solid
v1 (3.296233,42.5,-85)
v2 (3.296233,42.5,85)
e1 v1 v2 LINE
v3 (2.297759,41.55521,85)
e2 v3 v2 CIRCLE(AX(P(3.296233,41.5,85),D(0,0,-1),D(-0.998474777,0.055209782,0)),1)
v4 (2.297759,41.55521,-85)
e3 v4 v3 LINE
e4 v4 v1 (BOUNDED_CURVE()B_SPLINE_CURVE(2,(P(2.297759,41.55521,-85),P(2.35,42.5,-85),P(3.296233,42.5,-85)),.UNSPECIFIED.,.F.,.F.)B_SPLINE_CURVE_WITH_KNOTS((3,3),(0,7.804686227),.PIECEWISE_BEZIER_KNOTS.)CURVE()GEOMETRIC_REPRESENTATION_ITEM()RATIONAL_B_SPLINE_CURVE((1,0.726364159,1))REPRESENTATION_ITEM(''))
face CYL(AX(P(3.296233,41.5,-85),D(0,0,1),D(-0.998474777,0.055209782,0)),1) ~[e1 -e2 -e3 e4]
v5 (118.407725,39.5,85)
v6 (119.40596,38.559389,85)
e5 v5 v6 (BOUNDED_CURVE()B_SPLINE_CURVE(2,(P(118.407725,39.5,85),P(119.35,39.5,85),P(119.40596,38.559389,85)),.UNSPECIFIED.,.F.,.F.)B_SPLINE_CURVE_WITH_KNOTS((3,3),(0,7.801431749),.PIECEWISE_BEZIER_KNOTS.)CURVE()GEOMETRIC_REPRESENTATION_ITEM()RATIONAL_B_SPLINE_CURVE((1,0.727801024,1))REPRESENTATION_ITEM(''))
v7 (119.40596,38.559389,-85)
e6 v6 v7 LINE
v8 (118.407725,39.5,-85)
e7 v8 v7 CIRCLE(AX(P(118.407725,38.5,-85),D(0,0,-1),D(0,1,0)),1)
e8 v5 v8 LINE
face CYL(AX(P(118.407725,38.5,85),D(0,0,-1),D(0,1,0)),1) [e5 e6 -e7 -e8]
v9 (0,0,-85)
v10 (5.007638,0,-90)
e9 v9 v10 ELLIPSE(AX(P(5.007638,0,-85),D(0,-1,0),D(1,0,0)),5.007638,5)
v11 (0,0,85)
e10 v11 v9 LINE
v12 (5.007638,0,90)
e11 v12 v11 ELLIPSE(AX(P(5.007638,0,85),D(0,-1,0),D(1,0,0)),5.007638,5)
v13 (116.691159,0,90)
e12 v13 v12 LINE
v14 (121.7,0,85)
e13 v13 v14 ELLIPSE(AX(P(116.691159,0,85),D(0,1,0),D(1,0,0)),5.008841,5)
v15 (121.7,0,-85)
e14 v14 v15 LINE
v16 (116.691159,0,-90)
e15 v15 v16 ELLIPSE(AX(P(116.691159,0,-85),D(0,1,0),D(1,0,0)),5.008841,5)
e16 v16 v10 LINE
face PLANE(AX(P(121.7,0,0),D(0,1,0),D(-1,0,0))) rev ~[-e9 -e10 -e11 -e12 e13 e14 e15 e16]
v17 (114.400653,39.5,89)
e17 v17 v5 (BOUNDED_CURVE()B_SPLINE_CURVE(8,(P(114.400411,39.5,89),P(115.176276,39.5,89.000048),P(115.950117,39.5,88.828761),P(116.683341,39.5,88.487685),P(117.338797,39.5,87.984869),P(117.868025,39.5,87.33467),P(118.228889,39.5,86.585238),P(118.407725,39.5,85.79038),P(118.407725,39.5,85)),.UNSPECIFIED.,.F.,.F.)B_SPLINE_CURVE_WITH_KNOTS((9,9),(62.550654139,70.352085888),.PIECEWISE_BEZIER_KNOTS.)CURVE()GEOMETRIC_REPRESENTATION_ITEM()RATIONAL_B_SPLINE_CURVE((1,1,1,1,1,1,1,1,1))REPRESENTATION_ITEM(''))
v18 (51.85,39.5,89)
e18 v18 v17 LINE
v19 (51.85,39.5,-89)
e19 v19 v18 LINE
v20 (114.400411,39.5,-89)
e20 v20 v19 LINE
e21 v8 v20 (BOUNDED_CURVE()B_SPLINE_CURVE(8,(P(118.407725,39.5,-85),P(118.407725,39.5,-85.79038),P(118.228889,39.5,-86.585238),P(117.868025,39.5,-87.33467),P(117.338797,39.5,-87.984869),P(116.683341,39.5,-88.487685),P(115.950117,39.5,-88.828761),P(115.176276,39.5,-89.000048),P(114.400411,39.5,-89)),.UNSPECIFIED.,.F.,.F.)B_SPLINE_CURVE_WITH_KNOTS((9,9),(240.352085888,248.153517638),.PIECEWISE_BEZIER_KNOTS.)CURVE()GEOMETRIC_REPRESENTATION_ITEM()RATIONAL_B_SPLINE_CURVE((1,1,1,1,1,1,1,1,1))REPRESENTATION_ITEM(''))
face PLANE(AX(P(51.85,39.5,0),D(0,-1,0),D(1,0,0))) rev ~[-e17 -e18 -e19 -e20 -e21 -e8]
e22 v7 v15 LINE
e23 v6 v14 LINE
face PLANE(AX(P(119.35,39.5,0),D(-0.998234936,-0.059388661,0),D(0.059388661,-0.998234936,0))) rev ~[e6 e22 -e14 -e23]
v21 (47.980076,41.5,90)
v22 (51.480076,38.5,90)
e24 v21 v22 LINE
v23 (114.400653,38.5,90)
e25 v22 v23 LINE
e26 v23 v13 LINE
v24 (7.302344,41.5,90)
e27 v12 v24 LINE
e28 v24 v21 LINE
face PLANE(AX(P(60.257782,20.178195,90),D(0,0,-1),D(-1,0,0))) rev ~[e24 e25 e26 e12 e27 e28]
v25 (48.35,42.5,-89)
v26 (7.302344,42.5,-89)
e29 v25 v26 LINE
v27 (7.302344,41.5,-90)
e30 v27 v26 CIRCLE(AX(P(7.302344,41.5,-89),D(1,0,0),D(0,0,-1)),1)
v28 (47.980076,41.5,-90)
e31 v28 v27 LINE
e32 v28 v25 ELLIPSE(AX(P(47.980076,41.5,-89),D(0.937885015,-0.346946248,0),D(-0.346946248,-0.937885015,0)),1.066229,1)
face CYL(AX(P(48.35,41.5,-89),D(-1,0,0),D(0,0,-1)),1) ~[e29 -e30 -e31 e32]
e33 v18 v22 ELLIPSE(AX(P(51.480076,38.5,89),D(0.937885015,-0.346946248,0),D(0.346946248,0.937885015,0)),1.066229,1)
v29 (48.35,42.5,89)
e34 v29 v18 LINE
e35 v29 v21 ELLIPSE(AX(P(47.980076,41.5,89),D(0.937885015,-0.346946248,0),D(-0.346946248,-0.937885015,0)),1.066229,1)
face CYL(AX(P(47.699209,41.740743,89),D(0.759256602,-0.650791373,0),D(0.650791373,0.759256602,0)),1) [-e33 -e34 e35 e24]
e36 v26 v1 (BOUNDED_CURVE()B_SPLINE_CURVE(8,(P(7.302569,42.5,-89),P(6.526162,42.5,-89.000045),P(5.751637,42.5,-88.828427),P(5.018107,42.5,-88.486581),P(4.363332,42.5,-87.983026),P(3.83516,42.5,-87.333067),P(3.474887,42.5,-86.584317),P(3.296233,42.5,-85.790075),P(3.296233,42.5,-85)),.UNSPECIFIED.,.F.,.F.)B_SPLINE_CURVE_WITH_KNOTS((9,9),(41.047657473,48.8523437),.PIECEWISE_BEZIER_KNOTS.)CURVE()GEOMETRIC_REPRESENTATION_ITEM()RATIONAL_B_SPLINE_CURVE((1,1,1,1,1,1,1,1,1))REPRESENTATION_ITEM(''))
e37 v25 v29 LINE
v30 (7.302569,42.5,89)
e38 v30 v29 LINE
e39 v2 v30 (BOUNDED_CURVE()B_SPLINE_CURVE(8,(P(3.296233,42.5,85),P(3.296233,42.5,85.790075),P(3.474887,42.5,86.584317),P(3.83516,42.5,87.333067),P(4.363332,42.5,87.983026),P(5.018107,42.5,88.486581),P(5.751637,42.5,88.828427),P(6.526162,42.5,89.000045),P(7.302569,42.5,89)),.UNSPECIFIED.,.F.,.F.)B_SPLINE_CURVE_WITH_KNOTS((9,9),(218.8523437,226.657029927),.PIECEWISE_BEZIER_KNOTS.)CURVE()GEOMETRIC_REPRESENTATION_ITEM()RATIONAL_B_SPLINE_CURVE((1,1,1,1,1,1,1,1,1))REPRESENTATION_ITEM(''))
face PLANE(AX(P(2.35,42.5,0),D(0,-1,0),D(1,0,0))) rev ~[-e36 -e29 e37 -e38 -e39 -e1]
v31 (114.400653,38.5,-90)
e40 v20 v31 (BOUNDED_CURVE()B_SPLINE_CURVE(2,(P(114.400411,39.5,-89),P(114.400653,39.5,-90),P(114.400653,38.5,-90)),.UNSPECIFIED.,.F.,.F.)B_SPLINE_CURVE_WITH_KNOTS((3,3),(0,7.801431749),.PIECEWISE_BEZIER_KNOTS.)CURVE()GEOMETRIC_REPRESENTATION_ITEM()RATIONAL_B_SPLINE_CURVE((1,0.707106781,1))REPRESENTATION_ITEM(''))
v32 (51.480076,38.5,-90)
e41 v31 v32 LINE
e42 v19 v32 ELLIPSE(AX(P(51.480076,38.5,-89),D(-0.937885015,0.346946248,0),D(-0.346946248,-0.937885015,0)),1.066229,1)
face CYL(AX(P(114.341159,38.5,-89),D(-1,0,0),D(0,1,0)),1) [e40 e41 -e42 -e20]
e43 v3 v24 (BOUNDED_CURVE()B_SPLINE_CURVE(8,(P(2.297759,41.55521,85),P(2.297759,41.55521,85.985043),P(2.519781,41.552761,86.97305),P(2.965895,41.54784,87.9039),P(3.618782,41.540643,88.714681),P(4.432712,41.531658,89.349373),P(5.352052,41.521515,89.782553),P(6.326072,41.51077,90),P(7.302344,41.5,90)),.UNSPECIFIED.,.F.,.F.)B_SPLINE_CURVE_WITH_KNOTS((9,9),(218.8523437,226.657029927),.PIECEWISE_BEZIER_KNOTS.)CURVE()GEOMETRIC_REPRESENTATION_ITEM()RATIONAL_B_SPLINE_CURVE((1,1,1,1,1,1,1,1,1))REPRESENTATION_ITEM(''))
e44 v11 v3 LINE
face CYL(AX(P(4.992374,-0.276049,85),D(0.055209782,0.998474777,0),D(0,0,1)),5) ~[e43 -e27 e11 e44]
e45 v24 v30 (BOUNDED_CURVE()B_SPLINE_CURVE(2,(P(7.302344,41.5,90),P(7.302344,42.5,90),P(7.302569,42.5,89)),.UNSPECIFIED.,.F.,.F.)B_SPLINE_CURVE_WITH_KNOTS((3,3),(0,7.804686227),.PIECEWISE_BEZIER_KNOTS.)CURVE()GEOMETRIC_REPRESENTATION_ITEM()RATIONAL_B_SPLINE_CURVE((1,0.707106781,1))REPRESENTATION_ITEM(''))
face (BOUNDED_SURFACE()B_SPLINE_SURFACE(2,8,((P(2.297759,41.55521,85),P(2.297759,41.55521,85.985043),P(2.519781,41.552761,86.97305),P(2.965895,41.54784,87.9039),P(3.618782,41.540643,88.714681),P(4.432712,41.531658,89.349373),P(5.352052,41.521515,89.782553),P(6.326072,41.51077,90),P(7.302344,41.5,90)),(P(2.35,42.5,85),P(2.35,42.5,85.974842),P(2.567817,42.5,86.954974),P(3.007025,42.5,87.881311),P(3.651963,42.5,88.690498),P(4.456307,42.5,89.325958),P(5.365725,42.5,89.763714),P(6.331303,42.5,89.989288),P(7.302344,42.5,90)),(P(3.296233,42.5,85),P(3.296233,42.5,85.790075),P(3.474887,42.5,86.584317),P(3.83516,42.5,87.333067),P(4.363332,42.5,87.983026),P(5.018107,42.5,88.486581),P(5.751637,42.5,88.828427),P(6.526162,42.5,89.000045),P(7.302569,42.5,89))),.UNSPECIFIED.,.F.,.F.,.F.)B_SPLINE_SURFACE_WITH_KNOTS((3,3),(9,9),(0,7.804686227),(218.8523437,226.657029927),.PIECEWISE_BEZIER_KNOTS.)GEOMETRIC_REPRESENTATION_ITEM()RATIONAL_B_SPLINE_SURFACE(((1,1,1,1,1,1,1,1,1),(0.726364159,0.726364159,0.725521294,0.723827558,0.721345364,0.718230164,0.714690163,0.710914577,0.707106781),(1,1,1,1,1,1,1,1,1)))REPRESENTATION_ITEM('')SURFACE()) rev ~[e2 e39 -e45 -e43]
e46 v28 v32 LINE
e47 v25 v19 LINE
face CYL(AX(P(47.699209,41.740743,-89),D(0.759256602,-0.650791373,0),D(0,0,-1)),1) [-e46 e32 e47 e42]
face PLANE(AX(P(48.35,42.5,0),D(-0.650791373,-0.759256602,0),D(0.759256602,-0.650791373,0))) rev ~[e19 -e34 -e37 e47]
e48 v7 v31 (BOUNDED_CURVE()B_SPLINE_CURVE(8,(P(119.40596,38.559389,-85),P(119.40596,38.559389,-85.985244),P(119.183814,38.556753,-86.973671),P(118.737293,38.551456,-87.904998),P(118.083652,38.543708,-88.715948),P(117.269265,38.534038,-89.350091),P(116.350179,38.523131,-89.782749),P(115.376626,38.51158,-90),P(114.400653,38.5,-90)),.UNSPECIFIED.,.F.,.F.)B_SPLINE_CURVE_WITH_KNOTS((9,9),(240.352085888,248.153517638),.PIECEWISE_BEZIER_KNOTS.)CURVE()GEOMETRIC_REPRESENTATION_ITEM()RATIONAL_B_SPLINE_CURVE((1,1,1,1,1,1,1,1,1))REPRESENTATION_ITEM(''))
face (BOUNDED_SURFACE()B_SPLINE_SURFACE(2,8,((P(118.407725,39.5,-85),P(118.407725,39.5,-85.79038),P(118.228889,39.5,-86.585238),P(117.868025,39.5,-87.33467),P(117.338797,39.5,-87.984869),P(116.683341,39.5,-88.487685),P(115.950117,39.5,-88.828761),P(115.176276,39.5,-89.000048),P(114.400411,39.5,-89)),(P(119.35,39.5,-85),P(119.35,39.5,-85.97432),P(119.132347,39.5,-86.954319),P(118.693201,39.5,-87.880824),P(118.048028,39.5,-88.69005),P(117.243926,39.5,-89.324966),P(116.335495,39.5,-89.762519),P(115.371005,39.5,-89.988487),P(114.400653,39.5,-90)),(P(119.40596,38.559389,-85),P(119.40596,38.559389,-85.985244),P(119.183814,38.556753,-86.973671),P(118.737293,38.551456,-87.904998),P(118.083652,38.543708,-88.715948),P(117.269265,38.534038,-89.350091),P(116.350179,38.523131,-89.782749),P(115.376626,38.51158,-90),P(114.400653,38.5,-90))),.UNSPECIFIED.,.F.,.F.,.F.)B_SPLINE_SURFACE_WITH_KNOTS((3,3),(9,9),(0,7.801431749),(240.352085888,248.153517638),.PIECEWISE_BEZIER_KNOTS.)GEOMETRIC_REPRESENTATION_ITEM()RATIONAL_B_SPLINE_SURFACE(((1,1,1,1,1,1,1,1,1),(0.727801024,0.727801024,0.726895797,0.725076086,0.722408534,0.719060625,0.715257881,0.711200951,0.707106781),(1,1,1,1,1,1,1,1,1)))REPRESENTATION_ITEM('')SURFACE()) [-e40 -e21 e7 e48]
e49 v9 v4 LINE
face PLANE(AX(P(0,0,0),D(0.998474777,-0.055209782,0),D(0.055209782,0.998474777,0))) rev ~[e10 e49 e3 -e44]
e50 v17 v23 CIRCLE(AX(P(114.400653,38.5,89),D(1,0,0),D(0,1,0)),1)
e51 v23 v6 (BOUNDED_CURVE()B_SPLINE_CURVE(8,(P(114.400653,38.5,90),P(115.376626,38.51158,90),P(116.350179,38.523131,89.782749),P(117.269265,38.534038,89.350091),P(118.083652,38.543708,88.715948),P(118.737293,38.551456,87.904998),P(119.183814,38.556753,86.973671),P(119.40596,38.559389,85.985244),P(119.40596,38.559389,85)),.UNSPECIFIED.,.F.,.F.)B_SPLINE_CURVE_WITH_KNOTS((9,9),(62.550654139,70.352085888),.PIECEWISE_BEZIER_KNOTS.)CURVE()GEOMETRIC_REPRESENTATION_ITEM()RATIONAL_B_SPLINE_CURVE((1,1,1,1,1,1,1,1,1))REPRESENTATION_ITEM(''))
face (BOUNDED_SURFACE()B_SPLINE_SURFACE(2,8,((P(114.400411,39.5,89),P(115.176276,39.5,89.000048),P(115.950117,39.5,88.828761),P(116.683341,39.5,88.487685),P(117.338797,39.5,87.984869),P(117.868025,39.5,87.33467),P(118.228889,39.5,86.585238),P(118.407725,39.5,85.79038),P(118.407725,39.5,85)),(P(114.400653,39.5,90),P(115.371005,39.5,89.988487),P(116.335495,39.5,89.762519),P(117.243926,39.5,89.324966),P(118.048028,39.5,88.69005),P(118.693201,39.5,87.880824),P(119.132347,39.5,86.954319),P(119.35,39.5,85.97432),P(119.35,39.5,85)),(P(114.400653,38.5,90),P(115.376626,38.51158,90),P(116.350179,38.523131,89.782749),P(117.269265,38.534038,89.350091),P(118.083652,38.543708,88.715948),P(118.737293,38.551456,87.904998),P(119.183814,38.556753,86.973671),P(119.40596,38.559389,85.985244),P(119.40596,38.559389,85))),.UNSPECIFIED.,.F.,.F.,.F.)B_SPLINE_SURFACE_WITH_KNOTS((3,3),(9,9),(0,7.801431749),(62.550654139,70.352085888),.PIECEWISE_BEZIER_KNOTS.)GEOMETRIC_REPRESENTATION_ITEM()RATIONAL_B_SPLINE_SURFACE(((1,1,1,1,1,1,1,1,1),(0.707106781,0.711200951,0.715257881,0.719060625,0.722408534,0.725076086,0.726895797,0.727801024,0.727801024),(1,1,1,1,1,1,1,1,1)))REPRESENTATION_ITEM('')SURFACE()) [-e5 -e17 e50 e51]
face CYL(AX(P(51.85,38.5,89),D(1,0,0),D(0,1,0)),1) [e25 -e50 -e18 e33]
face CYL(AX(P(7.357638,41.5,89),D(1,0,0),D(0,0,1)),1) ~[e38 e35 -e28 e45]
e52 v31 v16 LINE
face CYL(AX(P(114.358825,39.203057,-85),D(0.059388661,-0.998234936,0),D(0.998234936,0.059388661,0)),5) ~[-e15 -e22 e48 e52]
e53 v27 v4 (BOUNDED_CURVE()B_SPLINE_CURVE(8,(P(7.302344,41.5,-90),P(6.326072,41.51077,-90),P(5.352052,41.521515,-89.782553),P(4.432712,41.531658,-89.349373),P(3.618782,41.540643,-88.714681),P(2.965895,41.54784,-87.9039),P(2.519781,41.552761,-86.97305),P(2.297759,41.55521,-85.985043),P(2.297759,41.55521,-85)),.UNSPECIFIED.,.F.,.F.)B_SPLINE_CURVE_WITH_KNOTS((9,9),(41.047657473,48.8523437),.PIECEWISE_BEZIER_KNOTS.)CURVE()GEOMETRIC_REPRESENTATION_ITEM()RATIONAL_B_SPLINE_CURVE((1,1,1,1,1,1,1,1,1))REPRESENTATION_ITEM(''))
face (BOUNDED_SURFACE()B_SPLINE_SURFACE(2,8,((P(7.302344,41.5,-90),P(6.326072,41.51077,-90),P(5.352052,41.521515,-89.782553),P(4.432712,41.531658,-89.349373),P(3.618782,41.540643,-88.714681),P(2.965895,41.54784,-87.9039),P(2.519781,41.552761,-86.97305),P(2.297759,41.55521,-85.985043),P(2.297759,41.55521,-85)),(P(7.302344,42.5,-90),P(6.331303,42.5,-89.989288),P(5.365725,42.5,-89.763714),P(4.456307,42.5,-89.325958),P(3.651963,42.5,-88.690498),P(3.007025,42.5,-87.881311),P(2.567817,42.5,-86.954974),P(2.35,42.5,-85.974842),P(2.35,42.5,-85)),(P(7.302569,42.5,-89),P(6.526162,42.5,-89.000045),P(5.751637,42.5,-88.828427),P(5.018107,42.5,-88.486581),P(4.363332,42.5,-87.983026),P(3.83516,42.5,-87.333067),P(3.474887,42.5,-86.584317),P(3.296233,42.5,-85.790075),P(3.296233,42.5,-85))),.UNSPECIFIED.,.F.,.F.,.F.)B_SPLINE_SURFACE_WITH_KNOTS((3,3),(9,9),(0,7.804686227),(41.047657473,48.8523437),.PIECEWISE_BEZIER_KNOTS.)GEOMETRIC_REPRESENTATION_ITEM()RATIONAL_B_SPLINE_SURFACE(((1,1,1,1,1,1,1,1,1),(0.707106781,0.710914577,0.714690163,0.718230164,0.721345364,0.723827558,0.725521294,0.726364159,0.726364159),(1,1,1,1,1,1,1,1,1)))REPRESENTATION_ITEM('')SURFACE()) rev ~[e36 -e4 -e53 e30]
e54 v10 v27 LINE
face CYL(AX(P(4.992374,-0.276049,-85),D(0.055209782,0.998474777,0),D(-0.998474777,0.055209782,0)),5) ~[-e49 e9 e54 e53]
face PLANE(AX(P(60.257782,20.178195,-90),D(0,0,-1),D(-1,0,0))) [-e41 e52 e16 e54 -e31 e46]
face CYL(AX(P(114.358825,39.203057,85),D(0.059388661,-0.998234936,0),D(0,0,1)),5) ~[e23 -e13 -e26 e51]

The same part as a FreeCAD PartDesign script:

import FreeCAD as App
import Part
import Sketcher

V = App.Vector
Q = App.Units.Quantity


def edges_at(feature, points):
    """Names of the edges that pass closest to the given points."""
    edges = feature.Shape.Edges
    near = lambda p: min(range(len(edges)), key=lambda i: edges[i].distToShape(Part.Vertex(*p))[0])
    return sorted({f"Edge{near(p) + 1}" for p in points})

doc = App.newDocument("Part")
body = doc.addObject("PartDesign::Body", "Body")

sketch1 = body.newObject("Sketcher::SketchObject", "Sketch")
sketch1.AttachmentSupport = (doc.getObject("XY_Plane"), [""])
sketch1.MapMode = "FlatFace"
sketch1.addGeometry([
    Part.LineSegment(V(119.35, 39.5, 0), V(51.85, 39.5, 0)),
    Part.LineSegment(V(51.85, 39.5, 0), V(48.35, 42.5, 0)),
    Part.LineSegment(V(48.35, 42.5, 0), V(2.35, 42.5, 0)),
    Part.LineSegment(V(2.35, 42.5, 0), V(0, 0, 0)),
    Part.LineSegment(V(0, 0, 0), V(121.7, 0, 0)),
    Part.LineSegment(V(121.7, 0, 0), V(119.35, 39.5, 0)),
], False)
sketch1.addConstraint([
    Sketcher.Constraint("Coincident", 0, 2, 1, 1),
    Sketcher.Constraint("Coincident", 1, 2, 2, 1),
    Sketcher.Constraint("Coincident", 2, 2, 3, 1),
    Sketcher.Constraint("Coincident", 3, 2, 4, 1),
    Sketcher.Constraint("Coincident", 4, 2, 5, 1),
    Sketcher.Constraint("Coincident", 5, 2, 0, 1),
    Sketcher.Constraint("Horizontal", 0),
    Sketcher.Constraint("Horizontal", 2),
    Sketcher.Constraint("Horizontal", 4),
    Sketcher.Constraint("Coincident", 3, 2, -1, 1),
    Sketcher.Constraint("DistanceX", 2, 2, 2, 1, Q("46 mm")),
    Sketcher.Constraint("DistanceX", 0, 2, 0, 1, Q("67.5 mm")),
    Sketcher.Constraint("DistanceX", 4, 1, 4, 2, Q("121.7 mm")),
    Sketcher.Constraint("DistanceY", 0, 2, 1, 2, Q("3 mm")),
    Sketcher.Constraint("DistanceX", 1, 2, 5, 2, Q("71 mm")),
    Sketcher.Constraint("DistanceY", -1, 1, 0, 2, Q("39.5 mm")),
    Sketcher.Constraint("DistanceX", -1, 1, 0, 2, Q("51.85 mm")),
])
pad1 = body.newObject("PartDesign::Pad", "Pad")
pad1.Profile = sketch1
pad1.Length = 180
pad1.Midplane = True
doc.recompute()

fillet = body.newObject("PartDesign::Fillet", "Fillet")
fillet.Base = (pad1, edges_at(pad1, [
    (120.525, 19.75, 90),
    (1.175, 21.25, 90),
    (120.525, 19.75, -90),
    (1.175, 21.25, -90),
]))
fillet.Radius = 5
doc.recompute()

fillet2 = body.newObject("PartDesign::Fillet", "Fillet001")
fillet2.Base = (fillet, edges_at(fillet, [
    (83.096, 39.5, 90),
    (50.1, 41, 90),
    (27.854, 42.5, 90),
    (3.818, 42.5, 88.537),
    (2.35, 42.5, 0),
    (3.818, 42.5, -88.537),
    (27.854, 42.5, -90),
    (50.1, 41, -90),
    (83.096, 39.5, -90),
    (117.881, 39.5, -88.537),
    (119.35, 39.5, 0),
    (117.881, 39.5, 88.537),
]))
fillet2.Radius = 1

doc.recompute()
